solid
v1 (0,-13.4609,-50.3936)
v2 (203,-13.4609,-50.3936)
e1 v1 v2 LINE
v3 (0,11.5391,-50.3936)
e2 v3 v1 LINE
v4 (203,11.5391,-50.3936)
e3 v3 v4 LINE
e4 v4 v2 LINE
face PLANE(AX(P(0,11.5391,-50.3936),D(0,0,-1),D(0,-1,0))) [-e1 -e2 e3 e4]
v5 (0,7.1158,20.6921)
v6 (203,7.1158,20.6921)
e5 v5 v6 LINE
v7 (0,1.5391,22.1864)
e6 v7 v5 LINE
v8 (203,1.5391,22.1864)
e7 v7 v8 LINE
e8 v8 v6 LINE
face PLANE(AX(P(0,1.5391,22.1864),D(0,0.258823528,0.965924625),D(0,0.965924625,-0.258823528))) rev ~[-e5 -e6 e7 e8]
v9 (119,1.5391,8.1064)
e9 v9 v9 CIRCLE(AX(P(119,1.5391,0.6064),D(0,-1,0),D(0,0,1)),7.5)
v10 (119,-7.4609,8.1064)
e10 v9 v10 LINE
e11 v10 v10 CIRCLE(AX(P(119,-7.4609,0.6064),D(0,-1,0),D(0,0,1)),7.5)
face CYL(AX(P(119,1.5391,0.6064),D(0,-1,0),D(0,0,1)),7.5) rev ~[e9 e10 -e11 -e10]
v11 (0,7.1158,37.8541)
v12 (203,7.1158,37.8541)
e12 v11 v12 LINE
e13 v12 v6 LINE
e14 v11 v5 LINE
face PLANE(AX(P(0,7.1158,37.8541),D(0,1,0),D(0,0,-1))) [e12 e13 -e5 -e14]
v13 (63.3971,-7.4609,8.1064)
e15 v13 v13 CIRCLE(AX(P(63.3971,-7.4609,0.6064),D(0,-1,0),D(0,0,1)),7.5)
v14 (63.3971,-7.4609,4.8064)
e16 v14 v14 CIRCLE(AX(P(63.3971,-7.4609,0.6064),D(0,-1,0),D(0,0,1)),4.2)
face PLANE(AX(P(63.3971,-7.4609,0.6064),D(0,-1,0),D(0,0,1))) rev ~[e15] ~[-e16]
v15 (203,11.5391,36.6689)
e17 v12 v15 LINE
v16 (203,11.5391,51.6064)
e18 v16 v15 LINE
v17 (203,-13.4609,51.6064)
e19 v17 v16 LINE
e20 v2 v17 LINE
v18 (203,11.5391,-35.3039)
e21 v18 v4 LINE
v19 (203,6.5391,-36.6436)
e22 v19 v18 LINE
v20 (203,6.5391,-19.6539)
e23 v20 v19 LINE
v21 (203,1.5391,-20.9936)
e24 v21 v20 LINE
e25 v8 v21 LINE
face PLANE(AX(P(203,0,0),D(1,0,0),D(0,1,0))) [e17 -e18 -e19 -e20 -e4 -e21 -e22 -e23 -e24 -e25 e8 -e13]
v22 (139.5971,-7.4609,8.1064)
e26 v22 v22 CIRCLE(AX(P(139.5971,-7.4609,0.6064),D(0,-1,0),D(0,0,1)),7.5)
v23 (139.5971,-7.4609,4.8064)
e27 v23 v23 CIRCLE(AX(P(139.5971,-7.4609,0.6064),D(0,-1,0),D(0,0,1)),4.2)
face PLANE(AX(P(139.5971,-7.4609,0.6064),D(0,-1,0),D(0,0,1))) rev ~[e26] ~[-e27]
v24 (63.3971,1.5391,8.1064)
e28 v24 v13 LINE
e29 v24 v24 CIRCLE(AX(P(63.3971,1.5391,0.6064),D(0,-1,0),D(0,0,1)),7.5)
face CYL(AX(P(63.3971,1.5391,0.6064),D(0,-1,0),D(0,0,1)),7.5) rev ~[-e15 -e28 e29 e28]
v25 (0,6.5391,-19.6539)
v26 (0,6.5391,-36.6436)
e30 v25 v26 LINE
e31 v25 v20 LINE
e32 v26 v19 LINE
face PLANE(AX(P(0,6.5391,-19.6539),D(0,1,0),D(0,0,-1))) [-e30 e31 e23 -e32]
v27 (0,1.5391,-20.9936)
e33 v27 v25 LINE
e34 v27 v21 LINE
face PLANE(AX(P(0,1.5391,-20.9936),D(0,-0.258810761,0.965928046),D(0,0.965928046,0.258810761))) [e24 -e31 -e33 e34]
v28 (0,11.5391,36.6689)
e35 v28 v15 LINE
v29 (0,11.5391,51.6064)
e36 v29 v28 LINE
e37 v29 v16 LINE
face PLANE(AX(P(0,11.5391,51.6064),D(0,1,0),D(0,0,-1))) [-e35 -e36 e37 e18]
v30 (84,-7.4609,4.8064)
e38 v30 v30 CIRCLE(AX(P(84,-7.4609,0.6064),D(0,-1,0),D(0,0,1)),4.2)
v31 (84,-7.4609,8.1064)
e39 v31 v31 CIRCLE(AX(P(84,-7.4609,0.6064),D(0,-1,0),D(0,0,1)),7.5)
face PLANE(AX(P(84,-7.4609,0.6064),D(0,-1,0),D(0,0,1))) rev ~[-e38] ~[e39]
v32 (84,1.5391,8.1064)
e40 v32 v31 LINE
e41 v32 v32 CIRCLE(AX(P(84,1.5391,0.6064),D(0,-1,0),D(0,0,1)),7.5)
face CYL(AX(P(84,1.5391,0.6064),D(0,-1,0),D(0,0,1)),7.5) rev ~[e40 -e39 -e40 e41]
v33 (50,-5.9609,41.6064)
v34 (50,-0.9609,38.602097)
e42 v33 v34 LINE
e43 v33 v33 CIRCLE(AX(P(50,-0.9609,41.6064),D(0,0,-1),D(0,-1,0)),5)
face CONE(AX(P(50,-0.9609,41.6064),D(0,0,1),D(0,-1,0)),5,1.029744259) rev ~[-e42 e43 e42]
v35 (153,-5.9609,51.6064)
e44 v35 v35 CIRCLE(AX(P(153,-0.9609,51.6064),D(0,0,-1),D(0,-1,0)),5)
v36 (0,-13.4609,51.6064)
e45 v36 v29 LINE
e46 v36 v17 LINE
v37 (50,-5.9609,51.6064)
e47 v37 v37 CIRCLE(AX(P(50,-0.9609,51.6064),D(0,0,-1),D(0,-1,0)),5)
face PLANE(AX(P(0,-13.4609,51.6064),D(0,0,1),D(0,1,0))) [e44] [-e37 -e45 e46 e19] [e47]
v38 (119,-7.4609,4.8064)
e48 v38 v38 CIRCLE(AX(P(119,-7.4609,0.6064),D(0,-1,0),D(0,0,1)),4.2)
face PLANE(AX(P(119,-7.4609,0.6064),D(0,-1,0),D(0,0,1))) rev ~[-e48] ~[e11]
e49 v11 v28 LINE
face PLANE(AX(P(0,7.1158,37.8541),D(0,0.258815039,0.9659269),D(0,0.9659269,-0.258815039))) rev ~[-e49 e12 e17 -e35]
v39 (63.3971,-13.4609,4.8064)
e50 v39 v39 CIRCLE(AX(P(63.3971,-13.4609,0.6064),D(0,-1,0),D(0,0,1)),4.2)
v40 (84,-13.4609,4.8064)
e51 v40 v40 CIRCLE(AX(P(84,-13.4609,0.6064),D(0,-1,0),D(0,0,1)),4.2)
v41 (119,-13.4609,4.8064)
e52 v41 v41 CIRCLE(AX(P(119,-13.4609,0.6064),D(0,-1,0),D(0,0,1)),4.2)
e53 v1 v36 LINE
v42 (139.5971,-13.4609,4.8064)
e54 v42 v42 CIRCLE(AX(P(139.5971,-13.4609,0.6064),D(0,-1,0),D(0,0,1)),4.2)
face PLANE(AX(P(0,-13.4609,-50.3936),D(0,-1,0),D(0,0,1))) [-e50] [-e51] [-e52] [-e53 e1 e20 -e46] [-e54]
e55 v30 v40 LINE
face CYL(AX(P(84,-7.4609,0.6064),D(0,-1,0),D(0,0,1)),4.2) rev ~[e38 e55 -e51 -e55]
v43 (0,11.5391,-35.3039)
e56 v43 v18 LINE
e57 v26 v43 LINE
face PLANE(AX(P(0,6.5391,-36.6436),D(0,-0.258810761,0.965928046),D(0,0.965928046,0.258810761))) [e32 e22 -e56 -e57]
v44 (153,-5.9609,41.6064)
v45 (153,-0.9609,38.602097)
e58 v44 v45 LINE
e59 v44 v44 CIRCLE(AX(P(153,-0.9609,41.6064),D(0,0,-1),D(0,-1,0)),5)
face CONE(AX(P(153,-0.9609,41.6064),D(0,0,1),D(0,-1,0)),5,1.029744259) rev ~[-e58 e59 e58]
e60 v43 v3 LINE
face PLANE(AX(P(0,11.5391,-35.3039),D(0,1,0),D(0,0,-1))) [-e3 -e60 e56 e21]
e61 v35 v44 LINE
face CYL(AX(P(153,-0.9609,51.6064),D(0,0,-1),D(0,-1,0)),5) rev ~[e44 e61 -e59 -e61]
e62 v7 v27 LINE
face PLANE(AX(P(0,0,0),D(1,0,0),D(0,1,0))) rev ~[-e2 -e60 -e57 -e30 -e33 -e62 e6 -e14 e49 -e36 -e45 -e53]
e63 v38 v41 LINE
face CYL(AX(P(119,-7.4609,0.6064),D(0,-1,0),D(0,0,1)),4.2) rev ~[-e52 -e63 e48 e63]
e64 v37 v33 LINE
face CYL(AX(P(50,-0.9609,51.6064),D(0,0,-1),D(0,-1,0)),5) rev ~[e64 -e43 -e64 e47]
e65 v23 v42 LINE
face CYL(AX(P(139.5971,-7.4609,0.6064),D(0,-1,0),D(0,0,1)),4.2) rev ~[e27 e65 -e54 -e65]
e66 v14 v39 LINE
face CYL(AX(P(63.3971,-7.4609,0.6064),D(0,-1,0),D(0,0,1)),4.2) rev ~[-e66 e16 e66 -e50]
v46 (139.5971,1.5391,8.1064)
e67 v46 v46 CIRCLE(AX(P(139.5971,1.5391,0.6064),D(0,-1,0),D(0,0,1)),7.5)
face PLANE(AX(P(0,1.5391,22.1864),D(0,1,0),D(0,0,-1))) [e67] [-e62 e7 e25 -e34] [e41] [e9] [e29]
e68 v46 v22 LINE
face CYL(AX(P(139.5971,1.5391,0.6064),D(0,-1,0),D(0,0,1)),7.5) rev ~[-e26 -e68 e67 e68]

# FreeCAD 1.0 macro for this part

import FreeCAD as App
import Part
import Sketcher
Q = App.Units.Quantity

doc = App.newDocument("Part")
body = doc.addObject("PartDesign::Body", "Body")

sketch1 = body.newObject("Sketcher::SketchObject", "Sketch")
sketch1.AttachmentSupport = (doc.getObject("YZ_Plane"), [""])
sketch1.MapMode = "FlatFace"
sketch1.addGeometry([
    Part.LineSegment(App.Vector(11.5391, 51.6064, 0), App.Vector(-13.4609, 51.6064, 0)),
    Part.LineSegment(App.Vector(-13.4609, 51.6064, 0), App.Vector(-13.4609, -50.3936, 0)),
    Part.LineSegment(App.Vector(-13.4609, -50.3936, 0), App.Vector(11.5391, -50.3936, 0)),
    Part.LineSegment(App.Vector(11.5391, -50.3936, 0), App.Vector(11.5391, -35.3039, 0)),
    Part.LineSegment(App.Vector(11.5391, -35.3039, 0), App.Vector(6.5391, -36.6436, 0)),
    Part.LineSegment(App.Vector(6.5391, -36.6436, 0), App.Vector(6.5391, -19.6539, 0)),
    Part.LineSegment(App.Vector(6.5391, -19.6539, 0), App.Vector(1.5391, -20.9936, 0)),
    Part.LineSegment(App.Vector(1.5391, -20.9936, 0), App.Vector(1.5391, 22.1864, 0)),
    Part.LineSegment(App.Vector(1.5391, 22.1864, 0), App.Vector(7.1158, 20.6921, 0)),
    Part.LineSegment(App.Vector(7.1158, 20.6921, 0), App.Vector(7.1158, 37.8541, 0)),
    Part.LineSegment(App.Vector(7.1158, 37.8541, 0), App.Vector(11.5391, 36.6689, 0)),
    Part.LineSegment(App.Vector(11.5391, 36.6689, 0), App.Vector(11.5391, 51.6064, 0)),
], False)
sketch1.addConstraint([
    Sketcher.Constraint("Coincident", 0, 2, 1, 1),
    Sketcher.Constraint("Coincident", 1, 2, 2, 1),
    Sketcher.Constraint("Coincident", 2, 2, 3, 1),
    Sketcher.Constraint("Coincident", 3, 2, 4, 1),
    Sketcher.Constraint("Coincident", 4, 2, 5, 1),
    Sketcher.Constraint("Coincident", 5, 2, 6, 1),
    Sketcher.Constraint("Coincident", 6, 2, 7, 1),
    Sketcher.Constraint("Coincident", 7, 2, 8, 1),
    Sketcher.Constraint("Coincident", 8, 2, 9, 1),
    Sketcher.Constraint("Coincident", 9, 2, 10, 1),
    Sketcher.Constraint("Coincident", 10, 2, 11, 1),
    Sketcher.Constraint("Coincident", 11, 2, 0, 1),
    Sketcher.Constraint("Horizontal", 0),
    Sketcher.Constraint("Vertical", 1),
    Sketcher.Constraint("Horizontal", 2),
    Sketcher.Constraint("Vertical", 3),
    Sketcher.Constraint("Vertical", 5),
    Sketcher.Constraint("Vertical", 7),
    Sketcher.Constraint("Vertical", 9),
    Sketcher.Constraint("Vertical", 11),
    Sketcher.Constraint("Parallel", 4, 6),
    Sketcher.Constraint("Parallel", 8, 10),
    Sketcher.Constraint("Vertical", 3, 2, 10, 2),
    Sketcher.Constraint("Equal", 4, 6),
    Sketcher.Constraint("DistanceX", 0, 2, 0, 1, Q("25 mm")),
    Sketcher.Constraint("DistanceY", 1, 2, 1, 1, Q("102 mm")),
    Sketcher.Constraint("Angle", 8, Q("-15.0003 deg")),
    Sketcher.Constraint("DistanceX", 1, 2, 6, 2, Q("15 mm")),
    Sketcher.Constraint("DistanceY", 7, 1, 7, 2, Q("43.18 mm")),
    Sketcher.Constraint("Angle", 4, Q("-165.0005 deg")),
    Sketcher.Constraint("DistanceY", 2, 2, 6, 2, Q("29.4 mm")),
    Sketcher.Constraint("DistanceY", 9, 1, 9, 2, Q("17.162 mm")),
    Sketcher.Constraint("DistanceY", 2, 2, 4, 2, Q("13.75 mm")),
    Sketcher.Constraint("DistanceX", 0, 2, -1, 1, Q("13.461 mm")),
    Sketcher.Constraint("DistanceY", 3, 2, -1, 1, Q("35.304 mm")),
    Sketcher.Constraint("DistanceY", -1, 1, 8, 2, Q("20.692 mm")),
])
pad1 = body.newObject("PartDesign::Pad", "Pad")
pad1.Profile = sketch1
pad1.Length = 203

sketch2 = body.newObject("Sketcher::SketchObject", "Sketch001")
sketch2.AttachmentSupport = (doc.getObject("XZ_Plane"), [""])
sketch2.MapMode = "FlatFace"
sketch2.AttachmentOffset = App.Placement(App.Vector(0, 0, -1.5391), App.Rotation())
sketch2.addGeometry([
    Part.Circle(App.Vector(63.3971, 0.6064, 0), App.Vector(0, 0, 1), 4.2),
    Part.Circle(App.Vector(139.5971, 0.6064, 0), App.Vector(0, 0, 1), 4.2),
], False)
sketch2.addConstraint([
    Sketcher.Constraint("Equal", 0, 1),
    Sketcher.Constraint("Horizontal", 0, 3, 1, 3),
    Sketcher.Constraint("Diameter", 0, Q("8.4 mm")),
    Sketcher.Constraint("DistanceX", 0, 3, 1, 3, Q("76.2 mm")),
    Sketcher.Constraint("DistanceX", -1, 1, 0, 3, Q("63.397 mm")),
    Sketcher.Constraint("DistanceY", -1, 1, 0, 3, Q("0.6064 mm")),
])
doc.recompute()
hole = body.newObject("PartDesign::Hole", "Hole")
hole.Profile = sketch2
hole.ThreadType = "None"
hole.Diameter = 8.4
hole.DepthType = "ThroughAll"
hole.HoleCutType = "Counterbore"
hole.HoleCutDiameter = 15
hole.HoleCutDepth = 9
hole.Reversed = True

sketch3 = body.newObject("Sketcher::SketchObject", "Sketch002")
sketch3.AttachmentSupport = (doc.getObject("XZ_Plane"), [""])
sketch3.MapMode = "FlatFace"
sketch3.AttachmentOffset = App.Placement(App.Vector(0, 0, -1.5391), App.Rotation())
sketch3.addGeometry([
    Part.Circle(App.Vector(84, 0.6064, 0), App.Vector(0, 0, 1), 4.2),
    Part.Circle(App.Vector(119, 0.6064, 0), App.Vector(0, 0, 1), 4.2),
], False)
sketch3.addConstraint([
    Sketcher.Constraint("Equal", 0, 1),
    Sketcher.Constraint("Horizontal", 0, 3, 1, 3),
    Sketcher.Constraint("Diameter", 0, Q("8.4 mm")),
    Sketcher.Constraint("DistanceX", -1, 1, 0, 3, Q("84 mm")),
    Sketcher.Constraint("DistanceX", -1, 1, 1, 3, Q("119 mm")),
    Sketcher.Constraint("DistanceY", -1, 1, 0, 3, Q("0.6064 mm")),
])
doc.recompute()
hole2 = body.newObject("PartDesign::Hole", "Hole001")
hole2.Profile = sketch3
hole2.ThreadType = "None"
hole2.Diameter = 8.4
hole2.DepthType = "ThroughAll"
hole2.HoleCutType = "Counterbore"
hole2.HoleCutDiameter = 15
hole2.HoleCutDepth = 9
hole2.Reversed = True

sketch4 = body.newObject("Sketcher::SketchObject", "Sketch003")
sketch4.AttachmentSupport = (doc.getObject("XY_Plane"), [""])
sketch4.MapMode = "FlatFace"
sketch4.AttachmentOffset = App.Placement(App.Vector(0, 0, 51.6064), App.Rotation())
sketch4.addGeometry([
    Part.Circle(App.Vector(50, -0.9609, 0), App.Vector(0, 0, 1), 5),
    Part.Circle(App.Vector(153, -0.9609, 0), App.Vector(0, 0, 1), 5),
], False)
sketch4.addConstraint([
    Sketcher.Constraint("Equal", 0, 1),
    Sketcher.Constraint("Horizontal", 0, 3, 1, 3),
    Sketcher.Constraint("Diameter", 0, Q("10 mm")),
    Sketcher.Constraint("DistanceX", -1, 1, 0, 3, Q("50 mm")),
    Sketcher.Constraint("DistanceX", -1, 1, 1, 3, Q("153 mm")),
    Sketcher.Constraint("DistanceY", 0, 3, -1, 1, Q("0.961 mm")),
])
doc.recompute()
hole3 = body.newObject("PartDesign::Hole", "Hole002")
hole3.Profile = sketch4
hole3.ThreadType = "None"
hole3.Diameter = 10
hole3.DepthType = "Dimension"
hole3.Depth = 10
hole3.DrillPoint = "Angled"
hole3.DrillPointAngle = 118

doc.recompute()
